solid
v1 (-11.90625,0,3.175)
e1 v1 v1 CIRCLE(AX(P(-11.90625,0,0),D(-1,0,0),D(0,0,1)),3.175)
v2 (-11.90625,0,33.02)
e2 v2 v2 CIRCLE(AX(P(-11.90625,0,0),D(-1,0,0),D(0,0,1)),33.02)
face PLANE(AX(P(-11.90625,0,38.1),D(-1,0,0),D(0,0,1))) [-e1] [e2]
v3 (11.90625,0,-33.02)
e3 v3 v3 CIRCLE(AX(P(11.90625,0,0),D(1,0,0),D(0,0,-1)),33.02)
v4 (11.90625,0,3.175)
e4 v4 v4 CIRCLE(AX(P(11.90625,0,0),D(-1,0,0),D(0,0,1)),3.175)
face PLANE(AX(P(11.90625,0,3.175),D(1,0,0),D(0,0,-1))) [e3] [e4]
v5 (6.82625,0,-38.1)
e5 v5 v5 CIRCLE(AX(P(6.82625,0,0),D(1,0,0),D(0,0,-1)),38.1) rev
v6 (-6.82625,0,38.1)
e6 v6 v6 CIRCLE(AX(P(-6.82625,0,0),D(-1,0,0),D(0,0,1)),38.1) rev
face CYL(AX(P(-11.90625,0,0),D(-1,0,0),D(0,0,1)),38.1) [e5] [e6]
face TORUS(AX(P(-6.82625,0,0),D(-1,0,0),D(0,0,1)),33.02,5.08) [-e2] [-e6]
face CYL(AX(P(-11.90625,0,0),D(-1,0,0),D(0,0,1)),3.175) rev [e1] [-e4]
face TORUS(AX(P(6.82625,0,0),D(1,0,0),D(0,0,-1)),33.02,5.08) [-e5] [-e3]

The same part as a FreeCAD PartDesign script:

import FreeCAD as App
import Part
import Sketcher
from FreeCAD import Vector
Q = App.Units.Quantity


def edges_at(feature, points):
    """Names of the edges that pass closest to the given points."""
    edges = feature.Shape.Edges
    near = lambda p: min(range(len(edges)), key=lambda i: edges[i].distToShape(Part.Vertex(*p))[0])
    return sorted({f"Edge{near(p) + 1}" for p in points})

doc = App.newDocument("Part")
body = doc.addObject("PartDesign::Body", "Body")

sketch1 = body.newObject("Sketcher::SketchObject", "Sketch")
sketch1.AttachmentSupport = (doc.getObject("XZ_Plane"), [""])
sketch1.MapMode = "FlatFace"
sketch1.addGeometry(Part.LineSegment(Vector(-12, 3, 0), Vector(-12, 38, 0)), False)
sketch1.addGeometry(Part.LineSegment(Vector(-12, 38, 0), Vector(12, 38, 0)), False)
sketch1.addGeometry(Part.LineSegment(Vector(12, 38, 0), Vector(12, 3, 0)), False)
sketch1.addGeometry(Part.LineSegment(Vector(12, 3, 0), Vector(-12, 3, 0)), False)
sketch1.addConstraint(Sketcher.Constraint("Coincident", 0, 2, 1, 1))
sketch1.addConstraint(Sketcher.Constraint("Coincident", 1, 2, 2, 1))
sketch1.addConstraint(Sketcher.Constraint("Coincident", 2, 2, 3, 1))
sketch1.addConstraint(Sketcher.Constraint("Coincident", 3, 2, 0, 1))
sketch1.addConstraint(Sketcher.Constraint("Vertical", 0))
sketch1.addConstraint(Sketcher.Constraint("Horizontal", 1))
sketch1.addConstraint(Sketcher.Constraint("Vertical", 2))
sketch1.addConstraint(Sketcher.Constraint("Horizontal", 3))
sketch1.addConstraint(Sketcher.Constraint("DistanceY", -1, 1, 0, 2, Q("1.5 in")))
sketch1.addConstraint(Sketcher.Constraint("DistanceX", 1, 1, 1, 2, Q("0.9375 in")))
sketch1.addConstraint(Sketcher.Constraint("DistanceY", 0, 1, 0, 2, Q("1.375 in")))
sketch1.addConstraint(Sketcher.Constraint("DistanceX", 0, 2, -1, 1, Q("0.46875 in")))
revolution = body.newObject("PartDesign::Revolution", "Revolution")
revolution.Profile = sketch1
revolution.ReferenceAxis = (sketch1, ["H_Axis"])
revolution.Angle = 360
doc.recompute()

fillet = body.newObject("PartDesign::Fillet", "Fillet")
fillet.Base = (revolution, edges_at(revolution, [(-11.906, 0, -38.1), (11.906, 0, -38.1)]))
fillet.Radius = Q("0.2 in")

doc.recompute()
